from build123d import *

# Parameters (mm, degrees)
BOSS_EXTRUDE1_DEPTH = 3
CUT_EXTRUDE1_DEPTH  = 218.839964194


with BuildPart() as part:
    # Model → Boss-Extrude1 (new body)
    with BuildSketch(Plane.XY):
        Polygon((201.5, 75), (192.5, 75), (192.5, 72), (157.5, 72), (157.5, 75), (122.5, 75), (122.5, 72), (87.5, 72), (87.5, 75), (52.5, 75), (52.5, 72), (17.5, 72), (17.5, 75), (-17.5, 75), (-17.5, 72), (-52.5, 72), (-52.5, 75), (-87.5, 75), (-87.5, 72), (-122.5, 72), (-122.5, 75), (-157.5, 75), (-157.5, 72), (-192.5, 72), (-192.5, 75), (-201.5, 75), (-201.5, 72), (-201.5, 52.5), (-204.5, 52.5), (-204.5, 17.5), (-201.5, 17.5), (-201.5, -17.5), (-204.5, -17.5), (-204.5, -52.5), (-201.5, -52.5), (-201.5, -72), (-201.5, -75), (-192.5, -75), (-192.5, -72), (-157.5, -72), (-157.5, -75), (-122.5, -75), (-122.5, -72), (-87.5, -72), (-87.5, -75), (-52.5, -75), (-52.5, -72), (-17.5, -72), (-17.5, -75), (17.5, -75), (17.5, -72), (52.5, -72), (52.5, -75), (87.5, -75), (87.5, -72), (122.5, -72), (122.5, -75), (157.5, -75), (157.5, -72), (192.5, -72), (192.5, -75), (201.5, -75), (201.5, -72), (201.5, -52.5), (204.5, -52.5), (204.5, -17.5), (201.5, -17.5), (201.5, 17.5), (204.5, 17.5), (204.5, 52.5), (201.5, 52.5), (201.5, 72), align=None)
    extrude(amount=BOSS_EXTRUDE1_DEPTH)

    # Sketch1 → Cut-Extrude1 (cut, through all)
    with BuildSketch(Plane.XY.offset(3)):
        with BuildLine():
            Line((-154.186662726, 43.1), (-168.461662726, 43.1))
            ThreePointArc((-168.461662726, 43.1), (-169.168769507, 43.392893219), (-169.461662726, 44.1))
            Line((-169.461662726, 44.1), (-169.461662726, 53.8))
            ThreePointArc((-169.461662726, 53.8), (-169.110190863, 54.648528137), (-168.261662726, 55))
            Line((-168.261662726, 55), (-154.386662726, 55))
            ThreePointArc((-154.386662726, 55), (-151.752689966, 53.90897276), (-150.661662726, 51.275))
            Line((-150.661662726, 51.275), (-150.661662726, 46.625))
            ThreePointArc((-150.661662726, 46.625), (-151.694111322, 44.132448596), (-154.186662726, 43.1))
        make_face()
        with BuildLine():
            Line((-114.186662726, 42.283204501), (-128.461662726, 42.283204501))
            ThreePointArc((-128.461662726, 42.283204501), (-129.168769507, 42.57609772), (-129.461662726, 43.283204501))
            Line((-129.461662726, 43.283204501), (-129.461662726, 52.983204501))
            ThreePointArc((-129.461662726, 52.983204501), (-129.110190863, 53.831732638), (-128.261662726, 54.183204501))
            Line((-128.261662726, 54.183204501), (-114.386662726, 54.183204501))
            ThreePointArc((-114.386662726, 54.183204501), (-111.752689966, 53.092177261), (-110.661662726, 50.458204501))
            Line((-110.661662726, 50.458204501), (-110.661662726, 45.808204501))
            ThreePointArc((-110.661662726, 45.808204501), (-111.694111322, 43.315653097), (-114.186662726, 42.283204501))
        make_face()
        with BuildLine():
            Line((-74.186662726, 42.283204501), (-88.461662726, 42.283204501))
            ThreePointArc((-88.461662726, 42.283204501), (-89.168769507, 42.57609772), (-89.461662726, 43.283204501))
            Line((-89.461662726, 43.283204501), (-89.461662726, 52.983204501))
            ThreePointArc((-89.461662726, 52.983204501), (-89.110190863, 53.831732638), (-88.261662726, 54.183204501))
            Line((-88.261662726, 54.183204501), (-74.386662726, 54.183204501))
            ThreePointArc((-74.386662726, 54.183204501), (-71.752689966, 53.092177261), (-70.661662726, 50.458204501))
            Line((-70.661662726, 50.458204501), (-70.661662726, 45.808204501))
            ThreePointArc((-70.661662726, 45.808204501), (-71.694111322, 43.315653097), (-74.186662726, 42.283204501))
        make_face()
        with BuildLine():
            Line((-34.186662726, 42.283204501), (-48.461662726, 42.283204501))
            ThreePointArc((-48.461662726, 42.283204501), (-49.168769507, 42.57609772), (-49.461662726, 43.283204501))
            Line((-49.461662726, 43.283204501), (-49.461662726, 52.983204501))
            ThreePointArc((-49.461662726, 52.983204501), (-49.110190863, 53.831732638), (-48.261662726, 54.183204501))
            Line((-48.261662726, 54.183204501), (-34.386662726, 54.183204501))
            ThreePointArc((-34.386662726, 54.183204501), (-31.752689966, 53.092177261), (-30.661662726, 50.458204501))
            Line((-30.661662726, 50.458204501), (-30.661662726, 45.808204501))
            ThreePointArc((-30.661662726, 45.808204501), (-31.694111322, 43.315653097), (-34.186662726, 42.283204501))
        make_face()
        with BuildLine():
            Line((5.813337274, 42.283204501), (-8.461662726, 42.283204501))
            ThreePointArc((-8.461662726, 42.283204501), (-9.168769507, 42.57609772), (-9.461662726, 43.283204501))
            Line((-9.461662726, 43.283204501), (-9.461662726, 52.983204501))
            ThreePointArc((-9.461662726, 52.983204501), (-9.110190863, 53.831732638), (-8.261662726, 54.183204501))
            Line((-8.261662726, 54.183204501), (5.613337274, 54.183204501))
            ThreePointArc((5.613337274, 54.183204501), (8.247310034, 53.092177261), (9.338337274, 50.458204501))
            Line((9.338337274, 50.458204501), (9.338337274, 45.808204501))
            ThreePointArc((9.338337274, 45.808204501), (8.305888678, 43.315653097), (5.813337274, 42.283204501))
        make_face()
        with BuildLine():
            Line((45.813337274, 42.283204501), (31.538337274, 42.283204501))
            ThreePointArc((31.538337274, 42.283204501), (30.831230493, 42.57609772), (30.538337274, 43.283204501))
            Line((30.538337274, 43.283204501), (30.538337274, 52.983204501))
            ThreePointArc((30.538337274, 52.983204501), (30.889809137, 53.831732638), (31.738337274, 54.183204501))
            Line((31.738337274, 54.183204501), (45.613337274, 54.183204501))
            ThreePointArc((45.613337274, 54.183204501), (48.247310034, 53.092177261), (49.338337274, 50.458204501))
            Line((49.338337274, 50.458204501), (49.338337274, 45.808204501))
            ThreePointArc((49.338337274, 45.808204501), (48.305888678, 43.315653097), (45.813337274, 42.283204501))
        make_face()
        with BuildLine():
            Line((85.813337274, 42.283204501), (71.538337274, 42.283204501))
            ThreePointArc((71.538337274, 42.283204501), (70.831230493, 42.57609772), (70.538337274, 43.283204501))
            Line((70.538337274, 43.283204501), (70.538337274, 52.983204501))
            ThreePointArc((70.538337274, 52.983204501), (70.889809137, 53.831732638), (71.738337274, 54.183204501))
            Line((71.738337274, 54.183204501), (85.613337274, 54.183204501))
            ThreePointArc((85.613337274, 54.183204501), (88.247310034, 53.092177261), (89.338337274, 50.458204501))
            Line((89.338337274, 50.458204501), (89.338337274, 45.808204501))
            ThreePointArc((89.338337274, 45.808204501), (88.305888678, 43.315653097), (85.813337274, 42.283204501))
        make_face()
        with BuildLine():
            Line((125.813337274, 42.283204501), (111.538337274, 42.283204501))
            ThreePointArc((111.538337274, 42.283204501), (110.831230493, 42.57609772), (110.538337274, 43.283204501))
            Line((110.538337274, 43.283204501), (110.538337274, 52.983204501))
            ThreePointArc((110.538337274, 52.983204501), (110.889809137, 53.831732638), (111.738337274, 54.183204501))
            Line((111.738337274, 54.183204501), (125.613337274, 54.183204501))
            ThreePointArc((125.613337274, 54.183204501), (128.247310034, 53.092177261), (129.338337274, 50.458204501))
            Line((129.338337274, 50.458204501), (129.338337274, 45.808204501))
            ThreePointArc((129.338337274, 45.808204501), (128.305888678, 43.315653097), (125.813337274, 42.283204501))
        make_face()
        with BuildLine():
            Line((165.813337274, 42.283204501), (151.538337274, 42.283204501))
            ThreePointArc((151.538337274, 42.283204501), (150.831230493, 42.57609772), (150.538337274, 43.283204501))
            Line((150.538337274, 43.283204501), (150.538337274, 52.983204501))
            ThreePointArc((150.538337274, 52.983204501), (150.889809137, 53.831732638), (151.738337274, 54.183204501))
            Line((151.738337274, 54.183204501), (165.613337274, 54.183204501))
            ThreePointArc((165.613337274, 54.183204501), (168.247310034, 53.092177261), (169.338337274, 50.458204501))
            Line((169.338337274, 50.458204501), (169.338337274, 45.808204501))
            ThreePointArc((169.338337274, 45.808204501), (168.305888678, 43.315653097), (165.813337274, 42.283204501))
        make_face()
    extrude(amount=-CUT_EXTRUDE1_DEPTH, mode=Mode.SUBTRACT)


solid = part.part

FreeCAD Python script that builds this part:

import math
import FreeCAD as App
import Part
import Sketcher

doc = App.newDocument("Part")
body = doc.addObject("PartDesign::Body", "Body")

# Sketch on XY plane
sketch1 = body.newObject("Sketcher::SketchObject", "Sketch")
sketch1.AttachmentSupport = (doc.getObject("XY_Plane"), [""])
sketch1.MapMode = "FlatFace"
sketch1.addGeometry(Part.LineSegment(App.Vector(201.5, 75, 0), App.Vector(192.5, 75, 0)), False)
sketch1.addGeometry(Part.LineSegment(App.Vector(192.5, 75, 0), App.Vector(192.5, 72, 0)), False)
sketch1.addGeometry(Part.LineSegment(App.Vector(192.5, 72, 0), App.Vector(157.5, 72, 0)), False)
sketch1.addGeometry(Part.LineSegment(App.Vector(157.5, 72, 0), App.Vector(157.5, 75, 0)), False)
sketch1.addGeometry(Part.LineSegment(App.Vector(157.5, 75, 0), App.Vector(122.5, 75, 0)), False)
sketch1.addGeometry(Part.LineSegment(App.Vector(122.5, 75, 0), App.Vector(122.5, 72, 0)), False)
sketch1.addGeometry(Part.LineSegment(App.Vector(122.5, 72, 0), App.Vector(87.5, 72, 0)), False)
sketch1.addGeometry(Part.LineSegment(App.Vector(87.5, 72, 0), App.Vector(87.5, 75, 0)), False)
sketch1.addGeometry(Part.LineSegment(App.Vector(87.5, 75, 0), App.Vector(52.5, 75, 0)), False)
sketch1.addGeometry(Part.LineSegment(App.Vector(52.5, 75, 0), App.Vector(52.5, 72, 0)), False)
sketch1.addGeometry(Part.LineSegment(App.Vector(52.5, 72, 0), App.Vector(17.5, 72, 0)), False)
sketch1.addGeometry(Part.LineSegment(App.Vector(17.5, 72, 0), App.Vector(17.5, 75, 0)), False)
sketch1.addGeometry(Part.LineSegment(App.Vector(17.5, 75, 0), App.Vector(-17.5, 75, 0)), False)
sketch1.addGeometry(Part.LineSegment(App.Vector(-17.5, 75, 0), App.Vector(-17.5, 72, 0)), False)
sketch1.addGeometry(Part.LineSegment(App.Vector(-17.5, 72, 0), App.Vector(-52.5, 72, 0)), False)
sketch1.addGeometry(Part.LineSegment(App.Vector(-52.5, 72, 0), App.Vector(-52.5, 75, 0)), False)
sketch1.addGeometry(Part.LineSegment(App.Vector(-52.5, 75, 0), App.Vector(-87.5, 75, 0)), False)
sketch1.addGeometry(Part.LineSegment(App.Vector(-87.5, 75, 0), App.Vector(-87.5, 72, 0)), False)
sketch1.addGeometry(Part.LineSegment(App.Vector(-87.5, 72, 0), App.Vector(-122.5, 72, 0)), False)
sketch1.addGeometry(Part.LineSegment(App.Vector(-122.5, 72, 0), App.Vector(-122.5, 75, 0)), False)
sketch1.addGeometry(Part.LineSegment(App.Vector(-122.5, 75, 0), App.Vector(-157.5, 75, 0)), False)
sketch1.addGeometry(Part.LineSegment(App.Vector(-157.5, 75, 0), App.Vector(-157.5, 72, 0)), False)
sketch1.addGeometry(Part.LineSegment(App.Vector(-157.5, 72, 0), App.Vector(-192.5, 72, 0)), False)
sketch1.addGeometry(Part.LineSegment(App.Vector(-192.5, 72, 0), App.Vector(-192.5, 75, 0)), False)
sketch1.addGeometry(Part.LineSegment(App.Vector(-192.5, 75, 0), App.Vector(-201.5, 75, 0)), False)
sketch1.addGeometry(Part.LineSegment(App.Vector(-201.5, 75, 0), App.Vector(-201.5, 52.5, 0)), False)
sketch1.addGeometry(Part.LineSegment(App.Vector(-201.5, 52.5, 0), App.Vector(-204.5, 52.5, 0)), False)
sketch1.addGeometry(Part.LineSegment(App.Vector(-204.5, 52.5, 0), App.Vector(-204.5, 17.5, 0)), False)
sketch1.addGeometry(Part.LineSegment(App.Vector(-204.5, 17.5, 0), App.Vector(-201.5, 17.5, 0)), False)
sketch1.addGeometry(Part.LineSegment(App.Vector(-201.5, 17.5, 0), App.Vector(-201.5, -17.5, 0)), False)
sketch1.addGeometry(Part.LineSegment(App.Vector(-201.5, -17.5, 0), App.Vector(-204.5, -17.5, 0)), False)
sketch1.addGeometry(Part.LineSegment(App.Vector(-204.5, -17.5, 0), App.Vector(-204.5, -52.5, 0)), False)
sketch1.addGeometry(Part.LineSegment(App.Vector(-204.5, -52.5, 0), App.Vector(-201.5, -52.5, 0)), False)
sketch1.addGeometry(Part.LineSegment(App.Vector(-201.5, -52.5, 0), App.Vector(-201.5, -75, 0)), False)
sketch1.addGeometry(Part.LineSegment(App.Vector(-201.5, -75, 0), App.Vector(-192.5, -75, 0)), False)
sketch1.addGeometry(Part.LineSegment(App.Vector(-192.5, -75, 0), App.Vector(-192.5, -72, 0)), False)
sketch1.addGeometry(Part.LineSegment(App.Vector(-192.5, -72, 0), App.Vector(-157.5, -72, 0)), False)
sketch1.addGeometry(Part.LineSegment(App.Vector(-157.5, -72, 0), App.Vector(-157.5, -75, 0)), False)
sketch1.addGeometry(Part.LineSegment(App.Vector(-157.5, -75, 0), App.Vector(-122.5, -75, 0)), False)
sketch1.addGeometry(Part.LineSegment(App.Vector(-122.5, -75, 0), App.Vector(-122.5, -72, 0)), False)
sketch1.addGeometry(Part.LineSegment(App.Vector(-122.5, -72, 0), App.Vector(-87.5, -72, 0)), False)
sketch1.addGeometry(Part.LineSegment(App.Vector(-87.5, -72, 0), App.Vector(-87.5, -75, 0)), False)
sketch1.addGeometry(Part.LineSegment(App.Vector(-87.5, -75, 0), App.Vector(-52.5, -75, 0)), False)
sketch1.addGeometry(Part.LineSegment(App.Vector(-52.5, -75, 0), App.Vector(-52.5, -72, 0)), False)
sketch1.addGeometry(Part.LineSegment(App.Vector(-52.5, -72, 0), App.Vector(-17.5, -72, 0)), False)
sketch1.addGeometry(Part.LineSegment(App.Vector(-17.5, -72, 0), App.Vector(-17.5, -75, 0)), False)
sketch1.addGeometry(Part.LineSegment(App.Vector(-17.5, -75, 0), App.Vector(17.5, -75, 0)), False)
sketch1.addGeometry(Part.LineSegment(App.Vector(17.5, -75, 0), App.Vector(17.5, -72, 0)), False)
sketch1.addGeometry(Part.LineSegment(App.Vector(17.5, -72, 0), App.Vector(52.5, -72, 0)), False)
sketch1.addGeometry(Part.LineSegment(App.Vector(52.5, -72, 0), App.Vector(52.5, -75, 0)), False)
sketch1.addGeometry(Part.LineSegment(App.Vector(52.5, -75, 0), App.Vector(87.5, -75, 0)), False)
sketch1.addGeometry(Part.LineSegment(App.Vector(87.5, -75, 0), App.Vector(87.5, -72, 0)), False)
sketch1.addGeometry(Part.LineSegment(App.Vector(87.5, -72, 0), App.Vector(122.5, -72, 0)), False)
sketch1.addGeometry(Part.LineSegment(App.Vector(122.5, -72, 0), App.Vector(122.5, -75, 0)), False)
sketch1.addGeometry(Part.LineSegment(App.Vector(122.5, -75, 0), App.Vector(157.5, -75, 0)), False)
sketch1.addGeometry(Part.LineSegment(App.Vector(157.5, -75, 0), App.Vector(157.5, -72, 0)), False)
sketch1.addGeometry(Part.LineSegment(App.Vector(157.5, -72, 0), App.Vector(192.5, -72, 0)), False)
sketch1.addGeometry(Part.LineSegment(App.Vector(192.5, -72, 0), App.Vector(192.5, -75, 0)), False)
sketch1.addGeometry(Part.LineSegment(App.Vector(192.5, -75, 0), App.Vector(201.5, -75, 0)), False)
sketch1.addGeometry(Part.LineSegment(App.Vector(201.5, -75, 0), App.Vector(201.5, -52.5, 0)), False)
sketch1.addGeometry(Part.LineSegment(App.Vector(201.5, -52.5, 0), App.Vector(204.5, -52.5, 0)), False)
sketch1.addGeometry(Part.LineSegment(App.Vector(204.5, -52.5, 0), App.Vector(204.5, -17.5, 0)), False)
sketch1.addGeometry(Part.LineSegment(App.Vector(204.5, -17.5, 0), App.Vector(201.5, -17.5, 0)), False)
sketch1.addGeometry(Part.LineSegment(App.Vector(201.5, -17.5, 0), App.Vector(201.5, 17.5, 0)), False)
sketch1.addGeometry(Part.LineSegment(App.Vector(201.5, 17.5, 0), App.Vector(204.5, 17.5, 0)), False)
sketch1.addGeometry(Part.LineSegment(App.Vector(204.5, 17.5, 0), App.Vector(204.5, 52.5, 0)), False)
sketch1.addGeometry(Part.LineSegment(App.Vector(204.5, 52.5, 0), App.Vector(201.5, 52.5, 0)), False)
sketch1.addGeometry(Part.LineSegment(App.Vector(201.5, 52.5, 0), App.Vector(201.5, 75, 0)), False)
sketch1.addConstraint(Sketcher.Constraint("Coincident", 0, 2, 1, 1))
sketch1.addConstraint(Sketcher.Constraint("Coincident", 1, 2, 2, 1))
sketch1.addConstraint(Sketcher.Constraint("Coincident", 2, 2, 3, 1))
sketch1.addConstraint(Sketcher.Constraint("Coincident", 3, 2, 4, 1))
sketch1.addConstraint(Sketcher.Constraint("Coincident", 4, 2, 5, 1))
sketch1.addConstraint(Sketcher.Constraint("Coincident", 5, 2, 6, 1))
sketch1.addConstraint(Sketcher.Constraint("Coincident", 6, 2, 7, 1))
sketch1.addConstraint(Sketcher.Constraint("Coincident", 7, 2, 8, 1))
sketch1.addConstraint(Sketcher.Constraint("Coincident", 8, 2, 9, 1))
sketch1.addConstraint(Sketcher.Constraint("Coincident", 9, 2, 10, 1))
sketch1.addConstraint(Sketcher.Constraint("Coincident", 10, 2, 11, 1))
sketch1.addConstraint(Sketcher.Constraint("Coincident", 11, 2, 12, 1))
sketch1.addConstraint(Sketcher.Constraint("Coincident", 12, 2, 13, 1))
sketch1.addConstraint(Sketcher.Constraint("Coincident", 13, 2, 14, 1))
sketch1.addConstraint(Sketcher.Constraint("Coincident", 14, 2, 15, 1))
sketch1.addConstraint(Sketcher.Constraint("Coincident", 15, 2, 16, 1))
sketch1.addConstraint(Sketcher.Constraint("Coincident", 16, 2, 17, 1))
sketch1.addConstraint(Sketcher.Constraint("Coincident", 17, 2, 18, 1))
sketch1.addConstraint(Sketcher.Constraint("Coincident", 18, 2, 19, 1))
sketch1.addConstraint(Sketcher.Constraint("Coincident", 19, 2, 20, 1))
sketch1.addConstraint(Sketcher.Constraint("Coincident", 20, 2, 21, 1))
sketch1.addConstraint(Sketcher.Constraint("Coincident", 21, 2, 22, 1))
sketch1.addConstraint(Sketcher.Constraint("Coincident", 22, 2, 23, 1))
sketch1.addConstraint(Sketcher.Constraint("Coincident", 23, 2, 24, 1))
sketch1.addConstraint(Sketcher.Constraint("Coincident", 24, 2, 25, 1))
sketch1.addConstraint(Sketcher.Constraint("Coincident", 25, 2, 26, 1))
sketch1.addConstraint(Sketcher.Constraint("Coincident", 26, 2, 27, 1))
sketch1.addConstraint(Sketcher.Constraint("Coincident", 27, 2, 28, 1))
sketch1.addConstraint(Sketcher.Constraint("Coincident", 28, 2, 29, 1))
sketch1.addConstraint(Sketcher.Constraint("Coincident", 29, 2, 30, 1))
sketch1.addConstraint(Sketcher.Constraint("Coincident", 30, 2, 31, 1))
sketch1.addConstraint(Sketcher.Constraint("Coincident", 31, 2, 32, 1))
sketch1.addConstraint(Sketcher.Constraint("Coincident", 32, 2, 33, 1))
sketch1.addConstraint(Sketcher.Constraint("Coincident", 33, 2, 34, 1))
sketch1.addConstraint(Sketcher.Constraint("Coincident", 34, 2, 35, 1))
sketch1.addConstraint(Sketcher.Constraint("Coincident", 35, 2, 36, 1))
sketch1.addConstraint(Sketcher.Constraint("Coincident", 36, 2, 37, 1))
sketch1.addConstraint(Sketcher.Constraint("Coincident", 37, 2, 38, 1))
sketch1.addConstraint(Sketcher.Constraint("Coincident", 38, 2, 39, 1))
sketch1.addConstraint(Sketcher.Constraint("Coincident", 39, 2, 40, 1))
sketch1.addConstraint(Sketcher.Constraint("Coincident", 40, 2, 41, 1))
sketch1.addConstraint(Sketcher.Constraint("Coincident", 41, 2, 42, 1))
sketch1.addConstraint(Sketcher.Constraint("Coincident", 42, 2, 43, 1))
sketch1.addConstraint(Sketcher.Constraint("Coincident", 43, 2, 44, 1))
sketch1.addConstraint(Sketcher.Constraint("Coincident", 44, 2, 45, 1))
sketch1.addConstraint(Sketcher.Constraint("Coincident", 45, 2, 46, 1))
sketch1.addConstraint(Sketcher.Constraint("Coincident", 46, 2, 47, 1))
sketch1.addConstraint(Sketcher.Constraint("Coincident", 47, 2, 48, 1))
sketch1.addConstraint(Sketcher.Constraint("Coincident", 48, 2, 49, 1))
sketch1.addConstraint(Sketcher.Constraint("Coincident", 49, 2, 50, 1))
sketch1.addConstraint(Sketcher.Constraint("Coincident", 50, 2, 51, 1))
sketch1.addConstraint(Sketcher.Constraint("Coincident", 51, 2, 52, 1))
sketch1.addConstraint(Sketcher.Constraint("Coincident", 52, 2, 53, 1))
sketch1.addConstraint(Sketcher.Constraint("Coincident", 53, 2, 54, 1))
sketch1.addConstraint(Sketcher.Constraint("Coincident", 54, 2, 55, 1))
sketch1.addConstraint(Sketcher.Constraint("Coincident", 55, 2, 56, 1))
sketch1.addConstraint(Sketcher.Constraint("Coincident", 56, 2, 57, 1))
sketch1.addConstraint(Sketcher.Constraint("Coincident", 57, 2, 58, 1))
sketch1.addConstraint(Sketcher.Constraint("Coincident", 58, 2, 59, 1))
sketch1.addConstraint(Sketcher.Constraint("Coincident", 59, 2, 60, 1))
sketch1.addConstraint(Sketcher.Constraint("Coincident", 60, 2, 61, 1))
sketch1.addConstraint(Sketcher.Constraint("Coincident", 61, 2, 62, 1))
sketch1.addConstraint(Sketcher.Constraint("Coincident", 62, 2, 63, 1))
sketch1.addConstraint(Sketcher.Constraint("Coincident", 63, 2, 64, 1))
sketch1.addConstraint(Sketcher.Constraint("Coincident", 64, 2, 65, 1))
sketch1.addConstraint(Sketcher.Constraint("Coincident", 65, 2, 66, 1))
sketch1.addConstraint(Sketcher.Constraint("Coincident", 66, 2, 67, 1))
sketch1.addConstraint(Sketcher.Constraint("Coincident", 67, 2, 0, 1))
sketch1.addConstraint(Sketcher.Constraint("Horizontal", 0))
sketch1.addConstraint(Sketcher.Constraint("Vertical", 1))
sketch1.addConstraint(Sketcher.Constraint("Horizontal", 2))
sketch1.addConstraint(Sketcher.Constraint("Vertical", 3))
sketch1.addConstraint(Sketcher.Constraint("Horizontal", 4))
sketch1.addConstraint(Sketcher.Constraint("Vertical", 5))
sketch1.addConstraint(Sketcher.Constraint("Horizontal", 6))
sketch1.addConstraint(Sketcher.Constraint("Vertical", 7))
sketch1.addConstraint(Sketcher.Constraint("Horizontal", 8))
sketch1.addConstraint(Sketcher.Constraint("Vertical", 9))
sketch1.addConstraint(Sketcher.Constraint("Horizontal", 10))
sketch1.addConstraint(Sketcher.Constraint("Vertical", 11))
sketch1.addConstraint(Sketcher.Constraint("Horizontal", 12))
sketch1.addConstraint(Sketcher.Constraint("Vertical", 13))
sketch1.addConstraint(Sketcher.Constraint("Horizontal", 14))
sketch1.addConstraint(Sketcher.Constraint("Vertical", 15))
sketch1.addConstraint(Sketcher.Constraint("Horizontal", 16))
sketch1.addConstraint(Sketcher.Constraint("Vertical", 17))
sketch1.addConstraint(Sketcher.Constraint("Horizontal", 18))
sketch1.addConstraint(Sketcher.Constraint("Vertical", 19))
sketch1.addConstraint(Sketcher.Constraint("Horizontal", 20))
sketch1.addConstraint(Sketcher.Constraint("Vertical", 21))
sketch1.addConstraint(Sketcher.Constraint("Horizontal", 22))
sketch1.addConstraint(Sketcher.Constraint("Vertical", 23))
sketch1.addConstraint(Sketcher.Constraint("Horizontal", 24))
sketch1.addConstraint(Sketcher.Constraint("Vertical", 25))
sketch1.addConstraint(Sketcher.Constraint("Horizontal", 26))
sketch1.addConstraint(Sketcher.Constraint("Vertical", 27))
sketch1.addConstraint(Sketcher.Constraint("Horizontal", 28))
sketch1.addConstraint(Sketcher.Constraint("Vertical", 29))
sketch1.addConstraint(Sketcher.Constraint("Horizontal", 30))
sketch1.addConstraint(Sketcher.Constraint("Vertical", 31))
sketch1.addConstraint(Sketcher.Constraint("Horizontal", 32))
sketch1.addConstraint(Sketcher.Constraint("Vertical", 33))
sketch1.addConstraint(Sketcher.Constraint("Horizontal", 34))
sketch1.addConstraint(Sketcher.Constraint("Vertical", 35))
sketch1.addConstraint(Sketcher.Constraint("Horizontal", 36))
sketch1.addConstraint(Sketcher.Constraint("Vertical", 37))
sketch1.addConstraint(Sketcher.Constraint("Horizontal", 38))
sketch1.addConstraint(Sketcher.Constraint("Vertical", 39))
sketch1.addConstraint(Sketcher.Constraint("Horizontal", 40))
sketch1.addConstraint(Sketcher.Constraint("Vertical", 41))
sketch1.addConstraint(Sketcher.Constraint("Horizontal", 42))
sketch1.addConstraint(Sketcher.Constraint("Vertical", 43))
sketch1.addConstraint(Sketcher.Constraint("Horizontal", 44))
sketch1.addConstraint(Sketcher.Constraint("Vertical", 45))
sketch1.addConstraint(Sketcher.Constraint("Horizontal", 46))
sketch1.addConstraint(Sketcher.Constraint("Vertical", 47))
sketch1.addConstraint(Sketcher.Constraint("Horizontal", 48))
sketch1.addConstraint(Sketcher.Constraint("Vertical", 49))
sketch1.addConstraint(Sketcher.Constraint("Horizontal", 50))
sketch1.addConstraint(Sketcher.Constraint("Vertical", 51))
sketch1.addConstraint(Sketcher.Constraint("Horizontal", 52))
sketch1.addConstraint(Sketcher.Constraint("Vertical", 53))
sketch1.addConstraint(Sketcher.Constraint("Horizontal", 54))
sketch1.addConstraint(Sketcher.Constraint("Vertical", 55))
sketch1.addConstraint(Sketcher.Constraint("Horizontal", 56))
sketch1.addConstraint(Sketcher.Constraint("Vertical", 57))
sketch1.addConstraint(Sketcher.Constraint("Horizontal", 58))
sketch1.addConstraint(Sketcher.Constraint("Vertical", 59))
sketch1.addConstraint(Sketcher.Constraint("Horizontal", 60))
sketch1.addConstraint(Sketcher.Constraint("Vertical", 61))
sketch1.addConstraint(Sketcher.Constraint("Horizontal", 62))
sketch1.addConstraint(Sketcher.Constraint("Vertical", 63))
sketch1.addConstraint(Sketcher.Constraint("Horizontal", 64))
sketch1.addConstraint(Sketcher.Constraint("Vertical", 65))
sketch1.addConstraint(Sketcher.Constraint("Horizontal", 66))
sketch1.addConstraint(Sketcher.Constraint("Vertical", 67))
sketch1.addConstraint(Sketcher.Constraint("Symmetric", 0, 2, 34, 2, -1, 1))
sketch1.addConstraint(Sketcher.Constraint("Symmetric", 2, 2, 36, 2, -1, 1))
sketch1.addConstraint(Sketcher.Constraint("Symmetric", 4, 2, 38, 2, -1, 1))
sketch1.addConstraint(Sketcher.Constraint("Symmetric", 6, 2, 40, 2, -1, 1))
sketch1.addConstraint(Sketcher.Constraint("Symmetric", 8, 2, 42, 2, -1, 1))
sketch1.addConstraint(Sketcher.Constraint("Symmetric", 10, 2, 44, 2, -1, 1))
sketch1.addConstraint(Sketcher.Constraint("Symmetric", 12, 2, 46, 2, -1, 1))
sketch1.addConstraint(Sketcher.Constraint("Symmetric", 14, 2, 48, 2, -1, 1))
sketch1.addConstraint(Sketcher.Constraint("Symmetric", 16, 2, 50, 2, -1, 1))
sketch1.addConstraint(Sketcher.Constraint("Symmetric", 18, 2, 52, 2, -1, 1))
sketch1.addConstraint(Sketcher.Constraint("Symmetric", 20, 2, 54, 2, -1, 1))
sketch1.addConstraint(Sketcher.Constraint("Symmetric", 22, 2, 56, 2, -1, 1))
sketch1.addConstraint(Sketcher.Constraint("Symmetric", 24, 2, 58, 2, -1, 1))
sketch1.addConstraint(Sketcher.Constraint("Symmetric", 26, 2, 60, 2, -1, 1))
sketch1.addConstraint(Sketcher.Constraint("Symmetric", 28, 2, 62, 2, -1, 1))
sketch1.addConstraint(Sketcher.Constraint("Symmetric", 30, 2, 64, 2, -1, 1))
sketch1.addConstraint(Sketcher.Constraint("Symmetric", 32, 2, 66, 2, -1, 1))
sketch1.addConstraint(Sketcher.Constraint("Symmetric", 10, 2, 13, 2, -2))
sketch1.addConstraint(Sketcher.Constraint("Symmetric", 8, 2, 15, 2, -2))
sketch1.addConstraint(Sketcher.Constraint("Symmetric", 6, 2, 17, 2, -2))
sketch1.addConstraint(Sketcher.Constraint("Symmetric", 4, 2, 19, 2, -2))
sketch1.addConstraint(Sketcher.Constraint("Symmetric", 2, 2, 21, 2, -2))
sketch1.addConstraint(Sketcher.Constraint("Symmetric", 0, 2, 23, 2, -2))
sketch1.addConstraint(Sketcher.Constraint("Symmetric", 32, 2, 59, 2, -2))
sketch1.addConstraint(Sketcher.Constraint("Symmetric", 30, 2, 61, 2, -2))
sketch1.addConstraint(Sketcher.Constraint("Horizontal", 0, 2, 3, 2))
sketch1.addConstraint(Sketcher.Constraint("Horizontal", 2, 2, 5, 2))
sketch1.addConstraint(Sketcher.Constraint("Horizontal", 4, 2, 7, 2))
sketch1.addConstraint(Sketcher.Constraint("Horizontal", 6, 2, 9, 2))
sketch1.addConstraint(Sketcher.Constraint("Horizontal", 8, 2, 11, 2))
sketch1.addConstraint(Sketcher.Constraint("Vertical", 25, 2, 28, 2))
sketch1.addConstraint(Sketcher.Constraint("Equal", 2, 4))
sketch1.addConstraint(Sketcher.Constraint("Equal", 4, 6))
sketch1.addConstraint(Sketcher.Constraint("Equal", 6, 8))
sketch1.addConstraint(Sketcher.Constraint("Equal", 8, 10))
sketch1.addConstraint(Sketcher.Constraint("Equal", 10, 12))
sketch1.addConstraint(Sketcher.Constraint("Equal", 66, 1))
sketch1.addConstraint(Sketcher.Constraint("Equal", 56, 27))
sketch1.addConstraint(Sketcher.Constraint("Equal", 27, 29))
sketch1.addConstraint(Sketcher.Constraint("DistanceX", 0, 2, 0, 1, 9.0))
sketch1.addConstraint(Sketcher.Constraint("DistanceX", 2, 2, 2, 1, 35.0))
sketch1.addConstraint(Sketcher.Constraint("DistanceX", 26, 2, 26, 1, 3.0))
sketch1.addConstraint(Sketcher.Constraint("DistanceY", 25, 2, 25, 1, 22.5))
pad1 = body.newObject("PartDesign::Pad", "Pad")
pad1.Profile = sketch1
pad1.Length = 3

# Sketch on XY plane
sketch2 = body.newObject("Sketcher::SketchObject", "Sketch001")
sketch2.AttachmentSupport = (doc.getObject("XY_Plane"), [""])
sketch2.MapMode = "FlatFace"
sketch2.AttachmentOffset = App.Placement(App.Vector(0, 0, 3), App.Rotation())
sketch2.addGeometry(Part.LineSegment(App.Vector(-168.5, 43.1, 0), App.Vector(-154.2, 43.1, 0)), False)
sketch2.addGeometry(Part.ArcOfCircle(Part.Circle(App.Vector(-154.2, 46.6, 0), App.Vector(0, 0, 1), 3.5), math.radians(-90), math.radians(0)), False)
sketch2.addGeometry(Part.LineSegment(App.Vector(-150.7, 46.6, 0), App.Vector(-150.7, 51.3, 0)), False)
sketch2.addGeometry(Part.ArcOfCircle(Part.Circle(App.Vector(-154.4, 51.3, 0), App.Vector(0, 0, 1), 3.7), math.radians(0), math.radians(90)), False)
sketch2.addGeometry(Part.LineSegment(App.Vector(-154.4, 55, 0), App.Vector(-168.3, 55, 0)), False)
sketch2.addGeometry(Part.ArcOfCircle(Part.Circle(App.Vector(-168.3, 53.8, 0), App.Vector(0, 0, 1), 1.2), math.radians(90), math.radians(180)), False)
sketch2.addGeometry(Part.LineSegment(App.Vector(-169.5, 53.8, 0), App.Vector(-169.5, 44.1, 0)), False)
sketch2.addGeometry(Part.ArcOfCircle(Part.Circle(App.Vector(-168.5, 44.1, 0), App.Vector(0, 0, 1), 1), math.radians(-180), math.radians(-90)), False)
sketch2.addGeometry(Part.LineSegment(App.Vector(-128.5, 42.3, 0), App.Vector(-114.2, 42.3, 0)), False)
sketch2.addGeometry(Part.ArcOfCircle(Part.Circle(App.Vector(-114.2, 45.8, 0), App.Vector(0, 0, 1), 3.5), math.radians(-90), math.radians(0)), False)
sketch2.addGeometry(Part.LineSegment(App.Vector(-110.7, 45.8, 0), App.Vector(-110.7, 50.5, 0)), False)
sketch2.addGeometry(Part.ArcOfCircle(Part.Circle(App.Vector(-114.4, 50.5, 0), App.Vector(0, 0, 1), 3.7), math.radians(0), math.radians(90)), False)
sketch2.addGeometry(Part.LineSegment(App.Vector(-114.4, 54.2, 0), App.Vector(-128.3, 54.2, 0)), False)
sketch2.addGeometry(Part.ArcOfCircle(Part.Circle(App.Vector(-128.3, 53, 0), App.Vector(0, 0, 1), 1.2), math.radians(90), math.radians(180)), False)
sketch2.addGeometry(Part.LineSegment(App.Vector(-129.5, 53, 0), App.Vector(-129.5, 43.3, 0)), False)
sketch2.addGeometry(Part.ArcOfCircle(Part.Circle(App.Vector(-128.5, 43.3, 0), App.Vector(0, 0, 1), 1), math.radians(-180), math.radians(-90)), False)
sketch2.addGeometry(Part.LineSegment(App.Vector(-88.5, 42.3, 0), App.Vector(-74.2, 42.3, 0)), False)
sketch2.addGeometry(Part.ArcOfCircle(Part.Circle(App.Vector(-74.2, 45.8, 0), App.Vector(0, 0, 1), 3.5), math.radians(-90), math.radians(0)), False)
sketch2.addGeometry(Part.LineSegment(App.Vector(-70.7, 45.8, 0), App.Vector(-70.7, 50.5, 0)), False)
sketch2.addGeometry(Part.ArcOfCircle(Part.Circle(App.Vector(-74.4, 50.5, 0), App.Vector(0, 0, 1), 3.7), math.radians(0), math.radians(90)), False)
sketch2.addGeometry(Part.LineSegment(App.Vector(-74.4, 54.2, 0), App.Vector(-88.3, 54.2, 0)), False)
sketch2.addGeometry(Part.ArcOfCircle(Part.Circle(App.Vector(-88.3, 53, 0), App.Vector(0, 0, 1), 1.2), math.radians(90), math.radians(180)), False)
sketch2.addGeometry(Part.LineSegment(App.Vector(-89.5, 53, 0), App.Vector(-89.5, 43.3, 0)), False)
sketch2.addGeometry(Part.ArcOfCircle(Part.Circle(App.Vector(-88.5, 43.3, 0), App.Vector(0, 0, 1), 1), math.radians(-180), math.radians(-90)), False)
sketch2.addGeometry(Part.LineSegment(App.Vector(-48.5, 42.3, 0), App.Vector(-34.2, 42.3, 0)), False)
sketch2.addGeometry(Part.ArcOfCircle(Part.Circle(App.Vector(-34.2, 45.8, 0), App.Vector(0, 0, 1), 3.5), math.radians(-90), math.radians(0)), False)
sketch2.addGeometry(Part.LineSegment(App.Vector(-30.7, 45.8, 0), App.Vector(-30.7, 50.5, 0)), False)
sketch2.addGeometry(Part.ArcOfCircle(Part.Circle(App.Vector(-34.4, 50.5, 0), App.Vector(0, 0, 1), 3.7), math.radians(0), math.radians(90)), False)
sketch2.addGeometry(Part.LineSegment(App.Vector(-34.4, 54.2, 0), App.Vector(-48.3, 54.2, 0)), False)
sketch2.addGeometry(Part.ArcOfCircle(Part.Circle(App.Vector(-48.3, 53, 0), App.Vector(0, 0, 1), 1.2), math.radians(90), math.radians(180)), False)
sketch2.addGeometry(Part.LineSegment(App.Vector(-49.5, 53, 0), App.Vector(-49.5, 43.3, 0)), False)
sketch2.addGeometry(Part.ArcOfCircle(Part.Circle(App.Vector(-48.5, 43.3, 0), App.Vector(0, 0, 1), 1), math.radians(-180), math.radians(-90)), False)
sketch2.addGeometry(Part.LineSegment(App.Vector(-8.5, 42.3, 0), App.Vector(5.8, 42.3, 0)), False)
sketch2.addGeometry(Part.ArcOfCircle(Part.Circle(App.Vector(5.8, 45.8, 0), App.Vector(0, 0, 1), 3.5), math.radians(-90), math.radians(0)), False)
sketch2.addGeometry(Part.LineSegment(App.Vector(9.3, 45.8, 0), App.Vector(9.3, 50.5, 0)), False)
sketch2.addGeometry(Part.ArcOfCircle(Part.Circle(App.Vector(5.6, 50.5, 0), App.Vector(0, 0, 1), 3.7), math.radians(0), math.radians(90)), False)
sketch2.addGeometry(Part.LineSegment(App.Vector(5.6, 54.2, 0), App.Vector(-8.3, 54.2, 0)), False)
sketch2.addGeometry(Part.ArcOfCircle(Part.Circle(App.Vector(-8.3, 53, 0), App.Vector(0, 0, 1), 1.2), math.radians(90), math.radians(180)), False)
sketch2.addGeometry(Part.LineSegment(App.Vector(-9.5, 53, 0), App.Vector(-9.5, 43.3, 0)), False)
sketch2.addGeometry(Part.ArcOfCircle(Part.Circle(App.Vector(-8.5, 43.3, 0), App.Vector(0, 0, 1), 1), math.radians(-180), math.radians(-90)), False)
sketch2.addGeometry(Part.LineSegment(App.Vector(31.5, 42.3, 0), App.Vector(45.8, 42.3, 0)), False)
sketch2.addGeometry(Part.ArcOfCircle(Part.Circle(App.Vector(45.8, 45.8, 0), App.Vector(0, 0, 1), 3.5), math.radians(-90), math.radians(0)), False)
sketch2.addGeometry(Part.LineSegment(App.Vector(49.3, 45.8, 0), App.Vector(49.3, 50.5, 0)), False)
sketch2.addGeometry(Part.ArcOfCircle(Part.Circle(App.Vector(45.6, 50.5, 0), App.Vector(0, 0, 1), 3.7), math.radians(0), math.radians(90)), False)
sketch2.addGeometry(Part.LineSegment(App.Vector(45.6, 54.2, 0), App.Vector(31.7, 54.2, 0)), False)
sketch2.addGeometry(Part.ArcOfCircle(Part.Circle(App.Vector(31.7, 53, 0), App.Vector(0, 0, 1), 1.2), math.radians(90), math.radians(180)), False)
sketch2.addGeometry(Part.LineSegment(App.Vector(30.5, 53, 0), App.Vector(30.5, 43.3, 0)), False)
sketch2.addGeometry(Part.ArcOfCircle(Part.Circle(App.Vector(31.5, 43.3, 0), App.Vector(0, 0, 1), 1), math.radians(-180), math.radians(-90)), False)
sketch2.addGeometry(Part.LineSegment(App.Vector(71.5, 42.3, 0), App.Vector(85.8, 42.3, 0)), False)
sketch2.addGeometry(Part.ArcOfCircle(Part.Circle(App.Vector(85.8, 45.8, 0), App.Vector(0, 0, 1), 3.5), math.radians(-90), math.radians(0)), False)
sketch2.addGeometry(Part.LineSegment(App.Vector(89.3, 45.8, 0), App.Vector(89.3, 50.5, 0)), False)
sketch2.addGeometry(Part.ArcOfCircle(Part.Circle(App.Vector(85.6, 50.5, 0), App.Vector(0, 0, 1), 3.7), math.radians(0), math.radians(90)), False)
sketch2.addGeometry(Part.LineSegment(App.Vector(85.6, 54.2, 0), App.Vector(71.7, 54.2, 0)), False)
sketch2.addGeometry(Part.ArcOfCircle(Part.Circle(App.Vector(71.7, 53, 0), App.Vector(0, 0, 1), 1.2), math.radians(90), math.radians(180)), False)
sketch2.addGeometry(Part.LineSegment(App.Vector(70.5, 53, 0), App.Vector(70.5, 43.3, 0)), False)
sketch2.addGeometry(Part.ArcOfCircle(Part.Circle(App.Vector(71.5, 43.3, 0), App.Vector(0, 0, 1), 1), math.radians(-180), math.radians(-90)), False)
sketch2.addGeometry(Part.LineSegment(App.Vector(111.5, 42.3, 0), App.Vector(125.8, 42.3, 0)), False)
sketch2.addGeometry(Part.ArcOfCircle(Part.Circle(App.Vector(125.8, 45.8, 0), App.Vector(0, 0, 1), 3.5), math.radians(-90), math.radians(0)), False)
sketch2.addGeometry(Part.LineSegment(App.Vector(129.3, 45.8, 0), App.Vector(129.3, 50.5, 0)), False)
sketch2.addGeometry(Part.ArcOfCircle(Part.Circle(App.Vector(125.6, 50.5, 0), App.Vector(0, 0, 1), 3.7), math.radians(0), math.radians(90)), False)
sketch2.addGeometry(Part.LineSegment(App.Vector(125.6, 54.2, 0), App.Vector(111.7, 54.2, 0)), False)
sketch2.addGeometry(Part.ArcOfCircle(Part.Circle(App.Vector(111.7, 53, 0), App.Vector(0, 0, 1), 1.2), math.radians(90), math.radians(180)), False)
sketch2.addGeometry(Part.LineSegment(App.Vector(110.5, 53, 0), App.Vector(110.5, 43.3, 0)), False)
sketch2.addGeometry(Part.ArcOfCircle(Part.Circle(App.Vector(111.5, 43.3, 0), App.Vector(0, 0, 1), 1), math.radians(-180), math.radians(-90)), False)
sketch2.addGeometry(Part.LineSegment(App.Vector(151.5, 42.3, 0), App.Vector(165.8, 42.3, 0)), False)
sketch2.addGeometry(Part.ArcOfCircle(Part.Circle(App.Vector(165.8, 45.8, 0), App.Vector(0, 0, 1), 3.5), math.radians(-90), math.radians(0)), False)
sketch2.addGeometry(Part.LineSegment(App.Vector(169.3, 45.8, 0), App.Vector(169.3, 50.5, 0)), False)
sketch2.addGeometry(Part.ArcOfCircle(Part.Circle(App.Vector(165.6, 50.5, 0), App.Vector(0, 0, 1), 3.7), math.radians(0), math.radians(90)), False)
sketch2.addGeometry(Part.LineSegment(App.Vector(165.6, 54.2, 0), App.Vector(151.7, 54.2, 0)), False)
sketch2.addGeometry(Part.ArcOfCircle(Part.Circle(App.Vector(151.7, 53, 0), App.Vector(0, 0, 1), 1.2), math.radians(90), math.radians(180)), False)
sketch2.addGeometry(Part.LineSegment(App.Vector(150.5, 53, 0), App.Vector(150.5, 43.3, 0)), False)
sketch2.addGeometry(Part.ArcOfCircle(Part.Circle(App.Vector(151.5, 43.3, 0), App.Vector(0, 0, 1), 1), math.radians(-180), math.radians(-90)), False)
sketch2.addConstraint(Sketcher.Constraint("Tangent", 0, 2, 1, 1))
sketch2.addConstraint(Sketcher.Constraint("Tangent", 1, 2, 2, 1))
sketch2.addConstraint(Sketcher.Constraint("Tangent", 2, 2, 3, 1))
sketch2.addConstraint(Sketcher.Constraint("Tangent", 3, 2, 4, 1))
sketch2.addConstraint(Sketcher.Constraint("Tangent", 4, 2, 5, 1))
sketch2.addConstraint(Sketcher.Constraint("Tangent", 5, 2, 6, 1))
sketch2.addConstraint(Sketcher.Constraint("Tangent", 6, 2, 7, 1))
sketch2.addConstraint(Sketcher.Constraint("Tangent", 7, 2, 0, 1))
sketch2.addConstraint(Sketcher.Constraint("Tangent", 8, 2, 9, 1))
sketch2.addConstraint(Sketcher.Constraint("Tangent", 9, 2, 10, 1))
sketch2.addConstraint(Sketcher.Constraint("Tangent", 10, 2, 11, 1))
sketch2.addConstraint(Sketcher.Constraint("Tangent", 11, 2, 12, 1))
sketch2.addConstraint(Sketcher.Constraint("Tangent", 12, 2, 13, 1))
sketch2.addConstraint(Sketcher.Constraint("Tangent", 13, 2, 14, 1))
sketch2.addConstraint(Sketcher.Constraint("Tangent", 14, 2, 15, 1))
sketch2.addConstraint(Sketcher.Constraint("Tangent", 15, 2, 8, 1))
sketch2.addConstraint(Sketcher.Constraint("Tangent", 16, 2, 17, 1))
sketch2.addConstraint(Sketcher.Constraint("Tangent", 17, 2, 18, 1))
sketch2.addConstraint(Sketcher.Constraint("Tangent", 18, 2, 19, 1))
sketch2.addConstraint(Sketcher.Constraint("Tangent", 19, 2, 20, 1))
sketch2.addConstraint(Sketcher.Constraint("Tangent", 20, 2, 21, 1))
sketch2.addConstraint(Sketcher.Constraint("Tangent", 21, 2, 22, 1))
sketch2.addConstraint(Sketcher.Constraint("Tangent", 22, 2, 23, 1))
sketch2.addConstraint(Sketcher.Constraint("Tangent", 23, 2, 16, 1))
sketch2.addConstraint(Sketcher.Constraint("Tangent", 24, 2, 25, 1))
sketch2.addConstraint(Sketcher.Constraint("Tangent", 25, 2, 26, 1))
sketch2.addConstraint(Sketcher.Constraint("Tangent", 26, 2, 27, 1))
sketch2.addConstraint(Sketcher.Constraint("Tangent", 27, 2, 28, 1))
sketch2.addConstraint(Sketcher.Constraint("Tangent", 28, 2, 29, 1))
sketch2.addConstraint(Sketcher.Constraint("Tangent", 29, 2, 30, 1))
sketch2.addConstraint(Sketcher.Constraint("Tangent", 30, 2, 31, 1))
sketch2.addConstraint(Sketcher.Constraint("Tangent", 31, 2, 24, 1))
sketch2.addConstraint(Sketcher.Constraint("Tangent", 32, 2, 33, 1))
sketch2.addConstraint(Sketcher.Constraint("Tangent", 33, 2, 34, 1))
sketch2.addConstraint(Sketcher.Constraint("Tangent", 34, 2, 35, 1))
sketch2.addConstraint(Sketcher.Constraint("Tangent", 35, 2, 36, 1))
sketch2.addConstraint(Sketcher.Constraint("Tangent", 36, 2, 37, 1))
sketch2.addConstraint(Sketcher.Constraint("Tangent", 37, 2, 38, 1))
sketch2.addConstraint(Sketcher.Constraint("Tangent", 38, 2, 39, 1))
sketch2.addConstraint(Sketcher.Constraint("Tangent", 39, 2, 32, 1))
sketch2.addConstraint(Sketcher.Constraint("Tangent", 40, 2, 41, 1))
sketch2.addConstraint(Sketcher.Constraint("Tangent", 41, 2, 42, 1))
sketch2.addConstraint(Sketcher.Constraint("Tangent", 42, 2, 43, 1))
sketch2.addConstraint(Sketcher.Constraint("Tangent", 43, 2, 44, 1))
sketch2.addConstraint(Sketcher.Constraint("Tangent", 44, 2, 45, 1))
sketch2.addConstraint(Sketcher.Constraint("Tangent", 45, 2, 46, 1))
sketch2.addConstraint(Sketcher.Constraint("Tangent", 46, 2, 47, 1))
sketch2.addConstraint(Sketcher.Constraint("Tangent", 47, 2, 40, 1))
sketch2.addConstraint(Sketcher.Constraint("Tangent", 48, 2, 49, 1))
sketch2.addConstraint(Sketcher.Constraint("Tangent", 49, 2, 50, 1))
sketch2.addConstraint(Sketcher.Constraint("Tangent", 50, 2, 51, 1))
sketch2.addConstraint(Sketcher.Constraint("Tangent", 51, 2, 52, 1))
sketch2.addConstraint(Sketcher.Constraint("Tangent", 52, 2, 53, 1))
sketch2.addConstraint(Sketcher.Constraint("Tangent", 53, 2, 54, 1))
sketch2.addConstraint(Sketcher.Constraint("Tangent", 54, 2, 55, 1))
sketch2.addConstraint(Sketcher.Constraint("Tangent", 55, 2, 48, 1))
sketch2.addConstraint(Sketcher.Constraint("Tangent", 56, 2, 57, 1))
sketch2.addConstraint(Sketcher.Constraint("Tangent", 57, 2, 58, 1))
sketch2.addConstraint(Sketcher.Constraint("Tangent", 58, 2, 59, 1))
sketch2.addConstraint(Sketcher.Constraint("Tangent", 59, 2, 60, 1))
sketch2.addConstraint(Sketcher.Constraint("Tangent", 60, 2, 61, 1))
sketch2.addConstraint(Sketcher.Constraint("Tangent", 61, 2, 62, 1))
sketch2.addConstraint(Sketcher.Constraint("Tangent", 62, 2, 63, 1))
sketch2.addConstraint(Sketcher.Constraint("Tangent", 63, 2, 56, 1))
sketch2.addConstraint(Sketcher.Constraint("Tangent", 64, 2, 65, 1))
sketch2.addConstraint(Sketcher.Constraint("Tangent", 65, 2, 66, 1))
sketch2.addConstraint(Sketcher.Constraint("Tangent", 66, 2, 67, 1))
sketch2.addConstraint(Sketcher.Constraint("Tangent", 67, 2, 68, 1))
sketch2.addConstraint(Sketcher.Constraint("Tangent", 68, 2, 69, 1))
sketch2.addConstraint(Sketcher.Constraint("Tangent", 69, 2, 70, 1))
sketch2.addConstraint(Sketcher.Constraint("Tangent", 70, 2, 71, 1))
sketch2.addConstraint(Sketcher.Constraint("Tangent", 71, 2, 64, 1))
sketch2.addConstraint(Sketcher.Constraint("Horizontal", 0))
sketch2.addConstraint(Sketcher.Constraint("Vertical", 2))
sketch2.addConstraint(Sketcher.Constraint("Horizontal", 4))
sketch2.addConstraint(Sketcher.Constraint("Vertical", 6))
sketch2.addConstraint(Sketcher.Constraint("Horizontal", 8))
sketch2.addConstraint(Sketcher.Constraint("Vertical", 10))
sketch2.addConstraint(Sketcher.Constraint("Horizontal", 12))
sketch2.addConstraint(Sketcher.Constraint("Vertical", 14))
sketch2.addConstraint(Sketcher.Constraint("Horizontal", 16))
sketch2.addConstraint(Sketcher.Constraint("Vertical", 18))
sketch2.addConstraint(Sketcher.Constraint("Horizontal", 20))
sketch2.addConstraint(Sketcher.Constraint("Vertical", 22))
sketch2.addConstraint(Sketcher.Constraint("Horizontal", 24))
sketch2.addConstraint(Sketcher.Constraint("Vertical", 26))
sketch2.addConstraint(Sketcher.Constraint("Horizontal", 28))
sketch2.addConstraint(Sketcher.Constraint("Vertical", 30))
sketch2.addConstraint(Sketcher.Constraint("Horizontal", 32))
sketch2.addConstraint(Sketcher.Constraint("Vertical", 34))
sketch2.addConstraint(Sketcher.Constraint("Horizontal", 36))
sketch2.addConstraint(Sketcher.Constraint("Vertical", 38))
sketch2.addConstraint(Sketcher.Constraint("Horizontal", 40))
sketch2.addConstraint(Sketcher.Constraint("Vertical", 42))
sketch2.addConstraint(Sketcher.Constraint("Horizontal", 44))
sketch2.addConstraint(Sketcher.Constraint("Vertical", 46))
sketch2.addConstraint(Sketcher.Constraint("Horizontal", 48))
sketch2.addConstraint(Sketcher.Constraint("Vertical", 50))
sketch2.addConstraint(Sketcher.Constraint("Horizontal", 52))
sketch2.addConstraint(Sketcher.Constraint("Vertical", 54))
sketch2.addConstraint(Sketcher.Constraint("Horizontal", 56))
sketch2.addConstraint(Sketcher.Constraint("Vertical", 58))
sketch2.addConstraint(Sketcher.Constraint("Horizontal", 60))
sketch2.addConstraint(Sketcher.Constraint("Vertical", 62))
sketch2.addConstraint(Sketcher.Constraint("Horizontal", 64))
sketch2.addConstraint(Sketcher.Constraint("Vertical", 66))
sketch2.addConstraint(Sketcher.Constraint("Horizontal", 68))
sketch2.addConstraint(Sketcher.Constraint("Vertical", 70))
sketch2.addConstraint(Sketcher.Constraint("Equal", 1, 9))
sketch2.addConstraint(Sketcher.Constraint("Equal", 3, 11))
sketch2.addConstraint(Sketcher.Constraint("Equal", 5, 13))
sketch2.addConstraint(Sketcher.Constraint("Equal", 7, 15))
sketch2.addConstraint(Sketcher.Constraint("Equal", 9, 17))
sketch2.addConstraint(Sketcher.Constraint("Equal", 11, 19))
sketch2.addConstraint(Sketcher.Constraint("Equal", 13, 21))
sketch2.addConstraint(Sketcher.Constraint("Equal", 15, 23))
sketch2.addConstraint(Sketcher.Constraint("Equal", 17, 25))
sketch2.addConstraint(Sketcher.Constraint("Equal", 19, 27))
sketch2.addConstraint(Sketcher.Constraint("Equal", 21, 29))
sketch2.addConstraint(Sketcher.Constraint("Equal", 23, 31))
sketch2.addConstraint(Sketcher.Constraint("Equal", 25, 33))
sketch2.addConstraint(Sketcher.Constraint("Equal", 27, 35))
sketch2.addConstraint(Sketcher.Constraint("Equal", 29, 37))
sketch2.addConstraint(Sketcher.Constraint("Equal", 31, 39))
sketch2.addConstraint(Sketcher.Constraint("Equal", 33, 41))
sketch2.addConstraint(Sketcher.Constraint("Equal", 35, 43))
sketch2.addConstraint(Sketcher.Constraint("Equal", 37, 45))
sketch2.addConstraint(Sketcher.Constraint("Equal", 39, 47))
sketch2.addConstraint(Sketcher.Constraint("Equal", 41, 49))
sketch2.addConstraint(Sketcher.Constraint("Equal", 43, 51))
sketch2.addConstraint(Sketcher.Constraint("Equal", 45, 53))
sketch2.addConstraint(Sketcher.Constraint("Equal", 47, 55))
sketch2.addConstraint(Sketcher.Constraint("Equal", 49, 57))
sketch2.addConstraint(Sketcher.Constraint("Equal", 51, 59))
sketch2.addConstraint(Sketcher.Constraint("Equal", 53, 61))
sketch2.addConstraint(Sketcher.Constraint("Equal", 55, 63))
sketch2.addConstraint(Sketcher.Constraint("Equal", 57, 65))
sketch2.addConstraint(Sketcher.Constraint("Equal", 59, 67))
sketch2.addConstraint(Sketcher.Constraint("Equal", 61, 69))
sketch2.addConstraint(Sketcher.Constraint("Equal", 63, 71))
sketch2.addConstraint(Sketcher.Constraint("Horizontal", 9, 3, 17, 3))
sketch2.addConstraint(Sketcher.Constraint("Horizontal", 11, 3, 19, 3))
sketch2.addConstraint(Sketcher.Constraint("Horizontal", 17, 3, 25, 3))
sketch2.addConstraint(Sketcher.Constraint("Horizontal", 19, 3, 27, 3))
sketch2.addConstraint(Sketcher.Constraint("Horizontal", 25, 3, 33, 3))
sketch2.addConstraint(Sketcher.Constraint("Horizontal", 27, 3, 35, 3))
sketch2.addConstraint(Sketcher.Constraint("Horizontal", 33, 3, 41, 3))
sketch2.addConstraint(Sketcher.Constraint("Horizontal", 35, 3, 43, 3))
sketch2.addConstraint(Sketcher.Constraint("Horizontal", 41, 3, 49, 3))
sketch2.addConstraint(Sketcher.Constraint("Horizontal", 43, 3, 51, 3))
sketch2.addConstraint(Sketcher.Constraint("Horizontal", 49, 3, 57, 3))
sketch2.addConstraint(Sketcher.Constraint("Horizontal", 51, 3, 59, 3))
sketch2.addConstraint(Sketcher.Constraint("Horizontal", 57, 3, 65, 3))
sketch2.addConstraint(Sketcher.Constraint("Horizontal", 59, 3, 67, 3))
sketch2.addConstraint(Sketcher.Constraint("Equal", 0, 8))
sketch2.addConstraint(Sketcher.Constraint("Equal", 8, 16))
sketch2.addConstraint(Sketcher.Constraint("Equal", 16, 24))
sketch2.addConstraint(Sketcher.Constraint("Equal", 24, 32))
sketch2.addConstraint(Sketcher.Constraint("Equal", 32, 40))
sketch2.addConstraint(Sketcher.Constraint("Equal", 40, 48))
sketch2.addConstraint(Sketcher.Constraint("Equal", 48, 56))
sketch2.addConstraint(Sketcher.Constraint("Equal", 56, 64))
sketch2.addConstraint(Sketcher.Constraint("Equal", 2, 10))
sketch2.addConstraint(Sketcher.Constraint("Radius", 7, 1.0))
sketch2.addConstraint(Sketcher.Constraint("Radius", 5, 1.2))
sketch2.addConstraint(Sketcher.Constraint("DistanceY", 6, 2, 6, 1, 9.7))
sketch2.addConstraint(Sketcher.Constraint("DistanceY", -1, 1, 3, 2, 55.0))
sketch2.addConstraint(Sketcher.Constraint("Radius", 1, 3.525))
sketch2.addConstraint(Sketcher.Constraint("Radius", 3, 3.725))
sketch2.addConstraint(Sketcher.Constraint("DistanceX", 0, 1, 0, 2, 14.275))
sketch2.addConstraint(Sketcher.Constraint("DistanceX", 1, 3, -1, 1, 154.186663))
sketch2.addConstraint(Sketcher.Constraint("DistanceX", 9, 3, -1, 1, 114.186663))
sketch2.addConstraint(Sketcher.Constraint("DistanceY", -1, 1, 9, 3, 45.808205))
sketch2.addConstraint(Sketcher.Constraint("DistanceX", 17, 3, -1, 1, 74.186663))
sketch2.addConstraint(Sketcher.Constraint("DistanceX", 25, 3, -1, 1, 34.186663))
sketch2.addConstraint(Sketcher.Constraint("DistanceX", -1, 1, 33, 3, 5.813337))
sketch2.addConstraint(Sketcher.Constraint("DistanceX", -1, 1, 41, 3, 45.813337))
sketch2.addConstraint(Sketcher.Constraint("DistanceX", -1, 1, 49, 3, 85.813337))
sketch2.addConstraint(Sketcher.Constraint("DistanceX", -1, 1, 57, 3, 125.813337))
sketch2.addConstraint(Sketcher.Constraint("DistanceX", -1, 1, 65, 3, 165.813337))
pocket1 = body.newObject("PartDesign::Pocket", "Pocket")
pocket1.Profile = sketch2
pocket1.Type = "ThroughAll"

doc.recompute()
